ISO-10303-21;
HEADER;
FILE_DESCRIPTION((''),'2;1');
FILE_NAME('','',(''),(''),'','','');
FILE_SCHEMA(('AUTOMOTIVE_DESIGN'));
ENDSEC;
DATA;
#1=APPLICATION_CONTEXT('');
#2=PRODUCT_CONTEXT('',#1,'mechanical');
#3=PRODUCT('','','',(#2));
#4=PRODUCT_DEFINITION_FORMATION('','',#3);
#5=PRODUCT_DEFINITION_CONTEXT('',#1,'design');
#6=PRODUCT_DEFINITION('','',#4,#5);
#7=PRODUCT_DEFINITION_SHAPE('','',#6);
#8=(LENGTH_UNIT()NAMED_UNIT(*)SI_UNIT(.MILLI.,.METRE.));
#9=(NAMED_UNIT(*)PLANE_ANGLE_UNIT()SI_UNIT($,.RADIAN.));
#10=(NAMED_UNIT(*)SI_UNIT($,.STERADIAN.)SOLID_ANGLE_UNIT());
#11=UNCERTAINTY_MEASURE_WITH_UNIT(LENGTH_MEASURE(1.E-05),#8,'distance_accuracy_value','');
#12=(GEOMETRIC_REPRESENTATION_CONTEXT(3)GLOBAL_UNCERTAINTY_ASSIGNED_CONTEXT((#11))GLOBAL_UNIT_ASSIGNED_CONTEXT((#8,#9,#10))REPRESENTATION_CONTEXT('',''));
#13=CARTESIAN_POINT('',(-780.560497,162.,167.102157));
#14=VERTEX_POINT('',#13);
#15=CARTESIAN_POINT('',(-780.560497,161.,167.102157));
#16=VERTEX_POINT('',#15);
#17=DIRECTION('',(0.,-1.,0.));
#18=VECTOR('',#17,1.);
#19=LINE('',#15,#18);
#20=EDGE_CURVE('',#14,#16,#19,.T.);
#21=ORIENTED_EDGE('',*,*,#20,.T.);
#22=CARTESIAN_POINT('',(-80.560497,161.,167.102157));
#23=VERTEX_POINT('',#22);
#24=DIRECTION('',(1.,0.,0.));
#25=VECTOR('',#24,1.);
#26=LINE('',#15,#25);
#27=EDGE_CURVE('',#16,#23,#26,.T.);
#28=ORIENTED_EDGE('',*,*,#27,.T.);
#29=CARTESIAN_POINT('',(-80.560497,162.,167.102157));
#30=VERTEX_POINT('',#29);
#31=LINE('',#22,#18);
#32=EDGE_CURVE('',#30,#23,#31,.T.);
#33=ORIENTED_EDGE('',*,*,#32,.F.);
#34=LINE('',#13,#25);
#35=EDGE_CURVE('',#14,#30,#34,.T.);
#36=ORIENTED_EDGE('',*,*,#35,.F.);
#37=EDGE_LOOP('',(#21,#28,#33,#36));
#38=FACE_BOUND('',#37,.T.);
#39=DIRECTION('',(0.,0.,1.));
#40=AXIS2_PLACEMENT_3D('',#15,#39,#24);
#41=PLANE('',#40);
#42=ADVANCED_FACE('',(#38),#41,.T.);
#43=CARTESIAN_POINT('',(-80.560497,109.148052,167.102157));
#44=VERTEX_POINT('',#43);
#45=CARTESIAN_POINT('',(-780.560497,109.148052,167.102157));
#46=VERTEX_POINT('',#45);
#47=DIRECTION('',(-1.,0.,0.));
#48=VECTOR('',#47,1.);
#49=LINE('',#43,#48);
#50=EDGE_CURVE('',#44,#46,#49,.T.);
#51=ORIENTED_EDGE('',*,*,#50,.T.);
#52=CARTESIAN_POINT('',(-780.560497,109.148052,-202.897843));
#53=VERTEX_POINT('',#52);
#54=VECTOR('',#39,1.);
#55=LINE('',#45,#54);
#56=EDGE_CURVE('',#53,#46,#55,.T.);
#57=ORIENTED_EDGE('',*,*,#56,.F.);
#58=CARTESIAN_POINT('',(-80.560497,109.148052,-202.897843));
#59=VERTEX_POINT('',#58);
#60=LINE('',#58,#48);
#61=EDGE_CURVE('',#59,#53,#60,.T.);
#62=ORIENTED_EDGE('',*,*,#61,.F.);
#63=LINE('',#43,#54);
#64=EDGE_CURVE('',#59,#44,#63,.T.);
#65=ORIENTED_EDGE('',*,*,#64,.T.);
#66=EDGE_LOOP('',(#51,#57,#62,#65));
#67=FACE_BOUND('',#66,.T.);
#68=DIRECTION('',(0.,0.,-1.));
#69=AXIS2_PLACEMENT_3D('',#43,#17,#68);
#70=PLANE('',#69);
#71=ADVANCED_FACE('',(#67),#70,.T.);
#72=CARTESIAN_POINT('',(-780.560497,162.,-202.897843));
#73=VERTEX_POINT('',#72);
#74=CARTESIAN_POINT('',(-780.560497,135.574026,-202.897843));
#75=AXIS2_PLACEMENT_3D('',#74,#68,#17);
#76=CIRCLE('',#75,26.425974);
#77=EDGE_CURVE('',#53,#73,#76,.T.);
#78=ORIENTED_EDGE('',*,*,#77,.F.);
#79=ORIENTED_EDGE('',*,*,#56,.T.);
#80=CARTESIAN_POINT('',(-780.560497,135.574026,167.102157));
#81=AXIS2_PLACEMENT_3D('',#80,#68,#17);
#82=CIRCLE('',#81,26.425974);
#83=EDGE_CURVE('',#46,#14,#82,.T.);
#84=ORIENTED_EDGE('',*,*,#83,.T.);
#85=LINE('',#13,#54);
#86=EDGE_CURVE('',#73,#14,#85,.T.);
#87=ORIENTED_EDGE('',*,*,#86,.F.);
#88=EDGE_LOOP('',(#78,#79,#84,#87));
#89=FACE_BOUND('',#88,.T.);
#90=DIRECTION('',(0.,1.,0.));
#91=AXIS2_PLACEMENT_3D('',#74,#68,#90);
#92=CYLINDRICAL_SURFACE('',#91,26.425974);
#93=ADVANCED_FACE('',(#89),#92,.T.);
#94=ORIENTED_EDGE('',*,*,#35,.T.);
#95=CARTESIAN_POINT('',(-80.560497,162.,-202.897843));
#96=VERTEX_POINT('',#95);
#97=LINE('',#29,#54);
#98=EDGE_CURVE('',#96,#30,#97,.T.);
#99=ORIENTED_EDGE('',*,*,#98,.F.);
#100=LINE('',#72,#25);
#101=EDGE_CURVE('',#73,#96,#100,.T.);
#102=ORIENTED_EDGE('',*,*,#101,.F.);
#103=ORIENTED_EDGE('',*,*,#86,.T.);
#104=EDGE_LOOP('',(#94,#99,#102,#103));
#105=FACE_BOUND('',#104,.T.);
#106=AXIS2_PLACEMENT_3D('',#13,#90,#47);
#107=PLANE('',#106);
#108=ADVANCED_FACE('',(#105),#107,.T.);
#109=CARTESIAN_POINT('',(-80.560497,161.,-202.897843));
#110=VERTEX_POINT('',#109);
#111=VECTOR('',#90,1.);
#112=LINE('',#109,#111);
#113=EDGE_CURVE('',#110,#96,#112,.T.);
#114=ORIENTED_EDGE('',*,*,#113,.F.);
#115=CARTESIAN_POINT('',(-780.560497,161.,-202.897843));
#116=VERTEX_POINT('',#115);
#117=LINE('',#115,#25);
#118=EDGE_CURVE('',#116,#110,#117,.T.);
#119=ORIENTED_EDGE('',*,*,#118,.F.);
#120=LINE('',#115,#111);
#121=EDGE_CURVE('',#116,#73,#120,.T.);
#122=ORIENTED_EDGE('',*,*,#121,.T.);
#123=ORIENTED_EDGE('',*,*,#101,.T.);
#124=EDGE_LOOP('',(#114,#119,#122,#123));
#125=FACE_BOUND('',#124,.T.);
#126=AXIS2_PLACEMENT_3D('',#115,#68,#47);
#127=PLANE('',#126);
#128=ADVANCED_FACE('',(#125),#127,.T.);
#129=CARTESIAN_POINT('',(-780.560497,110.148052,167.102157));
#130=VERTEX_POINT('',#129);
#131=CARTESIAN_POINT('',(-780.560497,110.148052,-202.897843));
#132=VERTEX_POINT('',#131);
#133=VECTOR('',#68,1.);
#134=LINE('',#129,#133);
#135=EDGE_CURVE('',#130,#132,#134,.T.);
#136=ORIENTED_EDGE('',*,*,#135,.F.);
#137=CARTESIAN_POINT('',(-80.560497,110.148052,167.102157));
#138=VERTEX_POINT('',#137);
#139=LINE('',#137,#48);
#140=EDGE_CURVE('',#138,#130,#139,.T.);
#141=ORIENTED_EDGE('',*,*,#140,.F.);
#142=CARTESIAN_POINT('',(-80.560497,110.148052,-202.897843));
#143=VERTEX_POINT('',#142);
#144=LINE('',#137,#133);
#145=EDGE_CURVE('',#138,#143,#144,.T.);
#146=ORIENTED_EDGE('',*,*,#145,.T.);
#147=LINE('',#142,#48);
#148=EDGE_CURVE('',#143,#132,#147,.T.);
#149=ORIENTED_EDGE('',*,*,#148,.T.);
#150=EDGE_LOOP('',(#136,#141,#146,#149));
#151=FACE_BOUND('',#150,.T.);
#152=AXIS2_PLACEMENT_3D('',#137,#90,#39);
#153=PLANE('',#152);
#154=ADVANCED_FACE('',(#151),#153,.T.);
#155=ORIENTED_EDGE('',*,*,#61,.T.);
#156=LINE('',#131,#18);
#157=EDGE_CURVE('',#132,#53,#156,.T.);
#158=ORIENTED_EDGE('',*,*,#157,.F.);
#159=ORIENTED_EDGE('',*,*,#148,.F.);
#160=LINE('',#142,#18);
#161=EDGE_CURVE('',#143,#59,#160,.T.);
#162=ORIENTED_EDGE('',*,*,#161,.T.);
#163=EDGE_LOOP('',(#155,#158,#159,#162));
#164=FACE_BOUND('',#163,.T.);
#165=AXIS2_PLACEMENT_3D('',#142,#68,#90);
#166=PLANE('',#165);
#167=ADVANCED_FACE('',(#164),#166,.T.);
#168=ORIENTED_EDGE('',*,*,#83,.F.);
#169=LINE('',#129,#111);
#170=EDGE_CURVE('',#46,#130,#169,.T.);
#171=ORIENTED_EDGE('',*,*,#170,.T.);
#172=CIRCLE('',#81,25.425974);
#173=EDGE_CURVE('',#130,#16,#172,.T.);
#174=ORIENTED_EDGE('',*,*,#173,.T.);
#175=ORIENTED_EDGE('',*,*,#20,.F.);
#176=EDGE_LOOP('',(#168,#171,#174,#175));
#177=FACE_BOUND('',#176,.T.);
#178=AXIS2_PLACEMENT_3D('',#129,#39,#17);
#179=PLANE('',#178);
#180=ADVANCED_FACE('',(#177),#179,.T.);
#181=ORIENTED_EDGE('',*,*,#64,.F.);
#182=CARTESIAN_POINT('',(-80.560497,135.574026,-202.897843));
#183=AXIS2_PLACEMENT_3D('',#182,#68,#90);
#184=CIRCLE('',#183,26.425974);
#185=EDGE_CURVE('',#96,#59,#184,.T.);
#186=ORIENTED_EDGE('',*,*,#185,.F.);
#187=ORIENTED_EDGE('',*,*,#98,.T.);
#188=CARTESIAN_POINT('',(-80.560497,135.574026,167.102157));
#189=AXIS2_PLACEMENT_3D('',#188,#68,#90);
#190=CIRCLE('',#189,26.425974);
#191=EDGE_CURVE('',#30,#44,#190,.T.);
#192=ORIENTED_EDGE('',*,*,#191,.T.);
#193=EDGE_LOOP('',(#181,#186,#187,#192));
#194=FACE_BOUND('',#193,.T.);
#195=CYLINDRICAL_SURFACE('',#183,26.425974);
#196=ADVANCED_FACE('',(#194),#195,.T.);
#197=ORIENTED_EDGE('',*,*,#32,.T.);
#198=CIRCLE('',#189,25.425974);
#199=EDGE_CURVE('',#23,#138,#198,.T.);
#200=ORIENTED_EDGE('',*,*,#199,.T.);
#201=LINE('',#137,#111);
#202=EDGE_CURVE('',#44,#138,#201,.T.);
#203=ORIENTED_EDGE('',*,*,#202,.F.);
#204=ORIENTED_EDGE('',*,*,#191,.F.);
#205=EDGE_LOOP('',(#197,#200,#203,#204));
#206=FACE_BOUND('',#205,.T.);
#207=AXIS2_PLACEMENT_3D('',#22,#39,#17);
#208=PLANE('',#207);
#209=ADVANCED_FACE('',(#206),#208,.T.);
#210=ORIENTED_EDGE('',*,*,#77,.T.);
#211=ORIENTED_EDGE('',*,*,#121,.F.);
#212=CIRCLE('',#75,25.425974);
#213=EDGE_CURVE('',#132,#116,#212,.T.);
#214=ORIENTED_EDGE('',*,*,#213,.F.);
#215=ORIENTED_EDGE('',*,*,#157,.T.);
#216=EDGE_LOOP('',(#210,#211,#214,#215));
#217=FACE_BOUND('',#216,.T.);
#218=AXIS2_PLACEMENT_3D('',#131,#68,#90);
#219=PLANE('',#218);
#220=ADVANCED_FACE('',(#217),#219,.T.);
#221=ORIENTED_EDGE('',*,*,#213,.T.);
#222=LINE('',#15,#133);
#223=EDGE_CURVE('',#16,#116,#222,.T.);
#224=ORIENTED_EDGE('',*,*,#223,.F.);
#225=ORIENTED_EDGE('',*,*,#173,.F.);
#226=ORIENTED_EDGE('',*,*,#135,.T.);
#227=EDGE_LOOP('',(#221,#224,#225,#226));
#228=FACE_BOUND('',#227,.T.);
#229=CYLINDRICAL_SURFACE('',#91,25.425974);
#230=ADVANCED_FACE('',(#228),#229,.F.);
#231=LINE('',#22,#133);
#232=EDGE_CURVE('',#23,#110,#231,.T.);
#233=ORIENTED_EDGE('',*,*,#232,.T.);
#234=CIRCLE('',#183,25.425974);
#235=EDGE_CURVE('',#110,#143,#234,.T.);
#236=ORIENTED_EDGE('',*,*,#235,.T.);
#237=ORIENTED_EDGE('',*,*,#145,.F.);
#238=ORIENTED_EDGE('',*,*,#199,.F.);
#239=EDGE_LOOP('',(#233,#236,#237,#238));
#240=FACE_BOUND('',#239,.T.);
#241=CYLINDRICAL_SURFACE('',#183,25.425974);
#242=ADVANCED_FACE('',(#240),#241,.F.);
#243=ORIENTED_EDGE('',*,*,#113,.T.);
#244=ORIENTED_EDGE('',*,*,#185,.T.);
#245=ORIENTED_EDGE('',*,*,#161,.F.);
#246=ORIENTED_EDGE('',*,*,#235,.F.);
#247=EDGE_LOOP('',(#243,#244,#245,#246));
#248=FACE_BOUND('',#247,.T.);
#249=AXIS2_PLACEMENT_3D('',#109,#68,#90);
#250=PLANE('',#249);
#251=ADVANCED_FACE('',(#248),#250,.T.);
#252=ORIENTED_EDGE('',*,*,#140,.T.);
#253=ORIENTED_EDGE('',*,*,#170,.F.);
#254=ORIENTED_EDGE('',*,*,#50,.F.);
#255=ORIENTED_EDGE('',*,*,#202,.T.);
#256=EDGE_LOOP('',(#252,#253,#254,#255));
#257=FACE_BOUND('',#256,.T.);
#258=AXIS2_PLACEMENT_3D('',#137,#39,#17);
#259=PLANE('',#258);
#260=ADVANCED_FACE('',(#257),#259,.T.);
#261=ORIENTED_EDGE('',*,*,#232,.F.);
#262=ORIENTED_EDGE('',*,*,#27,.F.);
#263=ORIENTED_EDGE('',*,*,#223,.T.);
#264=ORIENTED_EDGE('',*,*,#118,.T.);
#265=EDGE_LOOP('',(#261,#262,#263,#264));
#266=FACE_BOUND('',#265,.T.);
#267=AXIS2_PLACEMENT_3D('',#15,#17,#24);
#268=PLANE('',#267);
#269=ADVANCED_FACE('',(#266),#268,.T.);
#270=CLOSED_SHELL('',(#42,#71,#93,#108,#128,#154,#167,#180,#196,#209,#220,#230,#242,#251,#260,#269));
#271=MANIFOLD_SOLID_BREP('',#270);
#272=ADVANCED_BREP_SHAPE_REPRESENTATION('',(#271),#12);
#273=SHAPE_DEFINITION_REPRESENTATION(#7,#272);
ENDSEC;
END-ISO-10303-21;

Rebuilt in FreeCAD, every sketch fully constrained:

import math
import FreeCAD as App
import Part
import Sketcher
Q = App.Units.Quantity


def add_polygon(sketch, points):
    """Adds a closed chain of lines whose ends are joined by coincident constraints."""
    first, n = sketch.GeometryCount, len(points)
    for a, b in zip(points, points[1:] + points[:1]):
        sketch.addGeometry(Part.LineSegment(App.Vector(*a, 0), App.Vector(*b, 0)), False)
    for i in range(n):
        sketch.addConstraint(Sketcher.Constraint("Coincident", first + i, 2, first + (i + 1) % n, 1))

doc = App.newDocument("Part")
body = doc.addObject("PartDesign::Body", "Body")

sketch1 = body.newObject("Sketcher::SketchObject", "Sketch")
sketch1.AttachmentSupport = (doc.getObject("YZ_Plane"), [""])
sketch1.MapMode = "FlatFace"
sketch1.AttachmentOffset = App.Placement(App.Vector(0, 0, -80.560497), App.Rotation())
add_polygon(sketch1, [(162, 167.1), (161, 167.1), (161, -202.9), (162, -202.9)])
sketch1.addConstraint([
    Sketcher.Constraint("Horizontal", 0),
    Sketcher.Constraint("Vertical", 1),
    Sketcher.Constraint("Horizontal", 2),
    Sketcher.Constraint("Vertical", 3),
    Sketcher.Constraint("DistanceX", 0, 2, 0, 1, Q("1 mm")),
    Sketcher.Constraint("DistanceY", 1, 2, 1, 1, Q("370 mm")),
    Sketcher.Constraint("DistanceX", -1, 1, 0, 2, Q("161 mm")),
    Sketcher.Constraint("DistanceY", -1, 1, 0, 2, Q("167.102157 mm")),
])

sketch2 = body.newObject("Sketcher::SketchObject", "Sketch001")
sketch2.AttachmentSupport = (doc.getObject("XY_Plane"), [""])
sketch2.MapMode = "FlatFace"
sketch2.AttachmentOffset = App.Placement(App.Vector(0, 0, -202.897843), App.Rotation())
sketch2.addGeometry([
    Part.LineSegment(App.Vector(-81, 161, 0), App.Vector(-781, 161, 0)),
    Part.ArcOfCircle(Part.Circle(App.Vector(-781, 136, 0), App.Vector(0, 0, 1), 25), math.radians(90), math.radians(270)),
    Part.LineSegment(App.Vector(-781, 111, 0), App.Vector(-81, 111, 0)),
    Part.ArcOfCircle(Part.Circle(App.Vector(-81, 136, 0), App.Vector(0, 0, 1), 25), math.radians(-90), math.radians(90)),
], False)
sketch2.addConstraint([
    Sketcher.Constraint("Tangent", 0, 2, 1, 1),
    Sketcher.Constraint("Tangent", 1, 2, 2, 1),
    Sketcher.Constraint("Tangent", 2, 2, 3, 1),
    Sketcher.Constraint("Tangent", 3, 2, 0, 1),
    Sketcher.Constraint("Horizontal", 0),
    Sketcher.Constraint("Horizontal", 2),
    Sketcher.Constraint("Radius", 1, Q("25 mm")),
    Sketcher.Constraint("DistanceX", 0, 2, 0, 1, Q("700 mm")),
    Sketcher.Constraint("DistanceX", 1, 3, -1, 1, Q("780.560497 mm")),
    Sketcher.Constraint("DistanceY", -1, 1, 1, 3, Q("135.574026 mm")),
])
doc.recompute()

additivepipe = body.newObject("PartDesign::AdditivePipe", "AdditivePipe")
additivepipe.Profile = sketch1
additivepipe.Spine = (sketch2, ["Edge1", "Edge2", "Edge3", "Edge4"])

doc.recompute()
